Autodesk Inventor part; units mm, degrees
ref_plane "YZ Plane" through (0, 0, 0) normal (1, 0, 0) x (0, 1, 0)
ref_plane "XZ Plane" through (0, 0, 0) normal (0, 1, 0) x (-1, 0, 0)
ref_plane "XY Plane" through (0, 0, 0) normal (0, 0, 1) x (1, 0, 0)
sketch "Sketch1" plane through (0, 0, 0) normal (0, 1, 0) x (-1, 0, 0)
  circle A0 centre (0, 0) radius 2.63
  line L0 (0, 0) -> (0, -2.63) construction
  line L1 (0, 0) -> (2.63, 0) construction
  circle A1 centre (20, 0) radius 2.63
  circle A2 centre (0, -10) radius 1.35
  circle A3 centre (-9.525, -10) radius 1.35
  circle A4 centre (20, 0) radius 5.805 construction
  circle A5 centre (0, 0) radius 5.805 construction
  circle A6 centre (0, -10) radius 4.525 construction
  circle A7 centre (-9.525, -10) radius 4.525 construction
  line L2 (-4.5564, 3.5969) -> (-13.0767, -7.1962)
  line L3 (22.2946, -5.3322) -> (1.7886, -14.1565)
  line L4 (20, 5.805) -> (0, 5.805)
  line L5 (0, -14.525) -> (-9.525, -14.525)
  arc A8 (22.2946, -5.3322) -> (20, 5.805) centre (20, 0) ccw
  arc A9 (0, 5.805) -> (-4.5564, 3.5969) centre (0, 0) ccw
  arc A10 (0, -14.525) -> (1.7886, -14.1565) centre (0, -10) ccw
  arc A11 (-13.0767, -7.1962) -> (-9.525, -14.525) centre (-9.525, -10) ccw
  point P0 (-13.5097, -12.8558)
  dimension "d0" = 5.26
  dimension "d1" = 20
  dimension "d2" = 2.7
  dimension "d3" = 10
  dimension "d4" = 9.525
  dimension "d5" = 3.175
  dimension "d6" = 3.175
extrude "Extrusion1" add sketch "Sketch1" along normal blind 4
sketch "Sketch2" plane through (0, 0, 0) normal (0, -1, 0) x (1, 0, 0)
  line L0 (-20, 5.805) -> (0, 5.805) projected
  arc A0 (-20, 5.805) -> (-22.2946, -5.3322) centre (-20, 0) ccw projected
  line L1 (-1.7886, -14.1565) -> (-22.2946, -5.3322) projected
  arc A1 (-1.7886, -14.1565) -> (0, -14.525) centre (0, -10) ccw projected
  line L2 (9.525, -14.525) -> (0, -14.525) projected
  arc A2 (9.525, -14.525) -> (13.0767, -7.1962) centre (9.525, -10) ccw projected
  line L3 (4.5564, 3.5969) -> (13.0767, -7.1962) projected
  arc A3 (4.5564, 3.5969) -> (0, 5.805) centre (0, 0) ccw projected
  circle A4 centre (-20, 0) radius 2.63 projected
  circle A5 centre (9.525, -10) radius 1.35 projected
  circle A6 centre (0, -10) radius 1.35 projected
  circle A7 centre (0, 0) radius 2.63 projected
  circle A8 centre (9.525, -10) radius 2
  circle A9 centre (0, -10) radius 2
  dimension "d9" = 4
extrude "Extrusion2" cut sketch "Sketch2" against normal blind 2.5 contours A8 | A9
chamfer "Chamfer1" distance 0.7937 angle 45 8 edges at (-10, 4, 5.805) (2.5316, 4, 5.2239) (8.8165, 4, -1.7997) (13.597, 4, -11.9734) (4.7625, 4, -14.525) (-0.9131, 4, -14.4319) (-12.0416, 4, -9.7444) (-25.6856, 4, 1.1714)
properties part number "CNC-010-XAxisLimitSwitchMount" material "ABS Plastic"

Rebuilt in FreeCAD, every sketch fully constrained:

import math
import FreeCAD as App
import Part
import Sketcher

V = App.Vector
Q = App.Units.Quantity


def edges_at(feature, points):
    """Names of the edges that pass closest to the given points."""
    edges = feature.Shape.Edges
    near = lambda p: min(range(len(edges)), key=lambda i: edges[i].distToShape(Part.Vertex(*p))[0])
    return sorted({f"Edge{near(p) + 1}" for p in points})

doc = App.newDocument("Part")
body = doc.addObject("PartDesign::Body", "Body")

# Sketch on XZ plane
sketch1 = body.newObject("Sketcher::SketchObject", "Sketch")
sketch1.AttachmentSupport = (doc.getObject("XZ_Plane"), [""])
sketch1.MapMode = "FlatFace"
sketch1.addGeometry([
    Part.ArcOfCircle(Part.Circle(V(0, 0, 0), V(0, 0, 1), 5.8), math.radians(38), math.radians(90)),  # 0
    Part.LineSegment(V(4.6, 3.6, 0), V(13.1, -7.2, 0)),  # 1
    Part.ArcOfCircle(Part.Circle(V(9.5, -10, 0), V(0, 0, 1), 4.5), math.radians(-90), math.radians(38)),  # 2
    Part.LineSegment(V(9.5, -14.5, 0), V(0, -14.5, 0)),  # 3
    Part.ArcOfCircle(Part.Circle(V(0, -10, 0), V(0, 0, 1), 4.5), math.radians(-113), math.radians(-90)),  # 4
    Part.LineSegment(V(-1.8, -14.2, 0), V(-22.3, -5.3, 0)),  # 5
    Part.ArcOfCircle(Part.Circle(V(-20, 0, 0), V(0, 0, 1), 5.8), math.radians(90), math.radians(247)),  # 6
    Part.LineSegment(V(-20, 5.8, 0), V(0, 5.8, 0)),  # 7
    Part.Circle(V(9.5, -10, 0), V(0, 0, 1), 1.4),  # 8
    Part.Circle(V(0, -10, 0), V(0, 0, 1), 1.4),  # 9
    Part.Circle(V(0, 0, 0), V(0, 0, 1), 2.6),  # 10
    Part.Circle(V(-20, 0, 0), V(0, 0, 1), 2.6),  # 11
], False)
sketch1.addConstraint([
    Sketcher.Constraint("Tangent", 0, 1, 1, 1),
    Sketcher.Constraint("Tangent", 1, 2, 2, 2),
    Sketcher.Constraint("Tangent", 2, 1, 3, 1),
    Sketcher.Constraint("Tangent", 3, 2, 4, 2),
    Sketcher.Constraint("Tangent", 4, 1, 5, 1),
    Sketcher.Constraint("Tangent", 5, 2, 6, 2),
    Sketcher.Constraint("Tangent", 6, 1, 7, 1),
    Sketcher.Constraint("Tangent", 7, 2, 0, 2),
    Sketcher.Constraint("Horizontal", 3),
    Sketcher.Constraint("Horizontal", 7),
    Sketcher.Constraint("Coincident", 0, 3, -1, 1),
    Sketcher.Constraint("Coincident", 10, 3, -1, 1),
    Sketcher.Constraint("Coincident", 8, 3, 2, 3),
    Sketcher.Constraint("Coincident", 9, 3, 4, 3),
    Sketcher.Constraint("Coincident", 11, 3, 6, 3),
    Sketcher.Constraint("Equal", 2, 4),
    Sketcher.Constraint("Equal", 0, 6),
    Sketcher.Constraint("Equal", 8, 9),
    Sketcher.Constraint("Equal", 10, 11),
    Sketcher.Constraint("PointOnObject", 4, 3, -2),
    Sketcher.Constraint("Diameter", 8, Q("2.7 mm")),
    Sketcher.Constraint("Diameter", 10, Q("5.26 mm")),
    Sketcher.Constraint("DistanceX", 7, 1, 7, 2, Q("20 mm")),
    Sketcher.Constraint("DistanceY", 2, 3, -1, 1, Q("10 mm")),
    Sketcher.Constraint("DistanceX", 3, 2, 3, 1, Q("9.525 mm")),
    Sketcher.Constraint("Radius", 0, Q("5.805 mm")),
    Sketcher.Constraint("Radius", 2, Q("4.525 mm")),
])
pad1 = body.newObject("PartDesign::Pad", "Pad")
pad1.Profile = sketch1
pad1.Length = 4
pad1.Reversed = True

# Sketch on XZ plane
sketch2 = body.newObject("Sketcher::SketchObject", "Sketch001")
sketch2.AttachmentSupport = (doc.getObject("XZ_Plane"), [""])
sketch2.MapMode = "FlatFace"
sketch2.addGeometry([
    Part.Circle(V(9.5, -10, 0), V(0, 0, 1), 2),
    Part.Circle(V(9.5, -10, 0), V(0, 0, 1), 1.4),
    Part.Circle(V(0, -10, 0), V(0, 0, 1), 2),
    Part.Circle(V(0, -10, 0), V(0, 0, 1), 1.4),
], False)
sketch2.addConstraint([
    Sketcher.Constraint("Coincident", 1, 3, 0, 3),
    Sketcher.Constraint("Coincident", 3, 3, 2, 3),
    Sketcher.Constraint("Equal", 0, 2),
    Sketcher.Constraint("Equal", 1, 3),
    Sketcher.Constraint("PointOnObject", 2, 3, -2),
    Sketcher.Constraint("Horizontal", 1, 3, 2, 3),
    Sketcher.Constraint("Diameter", 0, Q("4 mm")),
    Sketcher.Constraint("Diameter", 1, Q("2.7 mm")),
    Sketcher.Constraint("DistanceY", 0, 3, -1, 1, Q("10 mm")),
    Sketcher.Constraint("DistanceX", -1, 1, 0, 3, Q("9.525 mm")),
])
pocket1 = body.newObject("PartDesign::Pocket", "Pocket")
pocket1.Profile = sketch2
pocket1.Length = 2.5
doc.recompute()

chamfer = body.newObject("PartDesign::Chamfer", "Chamfer")
chamfer.Base = (pocket1, edges_at(pocket1, [
    (-10, 4, 5.805),
    (2.532, 4, 5.224),
    (8.816, 4, -1.8),
    (13.597, 4, -11.973),
    (4.763, 4, -14.525),
    (-0.913, 4, -14.432),
    (-12.042, 4, -9.744),
    (-25.686, 4, 1.171),
]))
chamfer.Size = 0.7937

doc.recompute()
